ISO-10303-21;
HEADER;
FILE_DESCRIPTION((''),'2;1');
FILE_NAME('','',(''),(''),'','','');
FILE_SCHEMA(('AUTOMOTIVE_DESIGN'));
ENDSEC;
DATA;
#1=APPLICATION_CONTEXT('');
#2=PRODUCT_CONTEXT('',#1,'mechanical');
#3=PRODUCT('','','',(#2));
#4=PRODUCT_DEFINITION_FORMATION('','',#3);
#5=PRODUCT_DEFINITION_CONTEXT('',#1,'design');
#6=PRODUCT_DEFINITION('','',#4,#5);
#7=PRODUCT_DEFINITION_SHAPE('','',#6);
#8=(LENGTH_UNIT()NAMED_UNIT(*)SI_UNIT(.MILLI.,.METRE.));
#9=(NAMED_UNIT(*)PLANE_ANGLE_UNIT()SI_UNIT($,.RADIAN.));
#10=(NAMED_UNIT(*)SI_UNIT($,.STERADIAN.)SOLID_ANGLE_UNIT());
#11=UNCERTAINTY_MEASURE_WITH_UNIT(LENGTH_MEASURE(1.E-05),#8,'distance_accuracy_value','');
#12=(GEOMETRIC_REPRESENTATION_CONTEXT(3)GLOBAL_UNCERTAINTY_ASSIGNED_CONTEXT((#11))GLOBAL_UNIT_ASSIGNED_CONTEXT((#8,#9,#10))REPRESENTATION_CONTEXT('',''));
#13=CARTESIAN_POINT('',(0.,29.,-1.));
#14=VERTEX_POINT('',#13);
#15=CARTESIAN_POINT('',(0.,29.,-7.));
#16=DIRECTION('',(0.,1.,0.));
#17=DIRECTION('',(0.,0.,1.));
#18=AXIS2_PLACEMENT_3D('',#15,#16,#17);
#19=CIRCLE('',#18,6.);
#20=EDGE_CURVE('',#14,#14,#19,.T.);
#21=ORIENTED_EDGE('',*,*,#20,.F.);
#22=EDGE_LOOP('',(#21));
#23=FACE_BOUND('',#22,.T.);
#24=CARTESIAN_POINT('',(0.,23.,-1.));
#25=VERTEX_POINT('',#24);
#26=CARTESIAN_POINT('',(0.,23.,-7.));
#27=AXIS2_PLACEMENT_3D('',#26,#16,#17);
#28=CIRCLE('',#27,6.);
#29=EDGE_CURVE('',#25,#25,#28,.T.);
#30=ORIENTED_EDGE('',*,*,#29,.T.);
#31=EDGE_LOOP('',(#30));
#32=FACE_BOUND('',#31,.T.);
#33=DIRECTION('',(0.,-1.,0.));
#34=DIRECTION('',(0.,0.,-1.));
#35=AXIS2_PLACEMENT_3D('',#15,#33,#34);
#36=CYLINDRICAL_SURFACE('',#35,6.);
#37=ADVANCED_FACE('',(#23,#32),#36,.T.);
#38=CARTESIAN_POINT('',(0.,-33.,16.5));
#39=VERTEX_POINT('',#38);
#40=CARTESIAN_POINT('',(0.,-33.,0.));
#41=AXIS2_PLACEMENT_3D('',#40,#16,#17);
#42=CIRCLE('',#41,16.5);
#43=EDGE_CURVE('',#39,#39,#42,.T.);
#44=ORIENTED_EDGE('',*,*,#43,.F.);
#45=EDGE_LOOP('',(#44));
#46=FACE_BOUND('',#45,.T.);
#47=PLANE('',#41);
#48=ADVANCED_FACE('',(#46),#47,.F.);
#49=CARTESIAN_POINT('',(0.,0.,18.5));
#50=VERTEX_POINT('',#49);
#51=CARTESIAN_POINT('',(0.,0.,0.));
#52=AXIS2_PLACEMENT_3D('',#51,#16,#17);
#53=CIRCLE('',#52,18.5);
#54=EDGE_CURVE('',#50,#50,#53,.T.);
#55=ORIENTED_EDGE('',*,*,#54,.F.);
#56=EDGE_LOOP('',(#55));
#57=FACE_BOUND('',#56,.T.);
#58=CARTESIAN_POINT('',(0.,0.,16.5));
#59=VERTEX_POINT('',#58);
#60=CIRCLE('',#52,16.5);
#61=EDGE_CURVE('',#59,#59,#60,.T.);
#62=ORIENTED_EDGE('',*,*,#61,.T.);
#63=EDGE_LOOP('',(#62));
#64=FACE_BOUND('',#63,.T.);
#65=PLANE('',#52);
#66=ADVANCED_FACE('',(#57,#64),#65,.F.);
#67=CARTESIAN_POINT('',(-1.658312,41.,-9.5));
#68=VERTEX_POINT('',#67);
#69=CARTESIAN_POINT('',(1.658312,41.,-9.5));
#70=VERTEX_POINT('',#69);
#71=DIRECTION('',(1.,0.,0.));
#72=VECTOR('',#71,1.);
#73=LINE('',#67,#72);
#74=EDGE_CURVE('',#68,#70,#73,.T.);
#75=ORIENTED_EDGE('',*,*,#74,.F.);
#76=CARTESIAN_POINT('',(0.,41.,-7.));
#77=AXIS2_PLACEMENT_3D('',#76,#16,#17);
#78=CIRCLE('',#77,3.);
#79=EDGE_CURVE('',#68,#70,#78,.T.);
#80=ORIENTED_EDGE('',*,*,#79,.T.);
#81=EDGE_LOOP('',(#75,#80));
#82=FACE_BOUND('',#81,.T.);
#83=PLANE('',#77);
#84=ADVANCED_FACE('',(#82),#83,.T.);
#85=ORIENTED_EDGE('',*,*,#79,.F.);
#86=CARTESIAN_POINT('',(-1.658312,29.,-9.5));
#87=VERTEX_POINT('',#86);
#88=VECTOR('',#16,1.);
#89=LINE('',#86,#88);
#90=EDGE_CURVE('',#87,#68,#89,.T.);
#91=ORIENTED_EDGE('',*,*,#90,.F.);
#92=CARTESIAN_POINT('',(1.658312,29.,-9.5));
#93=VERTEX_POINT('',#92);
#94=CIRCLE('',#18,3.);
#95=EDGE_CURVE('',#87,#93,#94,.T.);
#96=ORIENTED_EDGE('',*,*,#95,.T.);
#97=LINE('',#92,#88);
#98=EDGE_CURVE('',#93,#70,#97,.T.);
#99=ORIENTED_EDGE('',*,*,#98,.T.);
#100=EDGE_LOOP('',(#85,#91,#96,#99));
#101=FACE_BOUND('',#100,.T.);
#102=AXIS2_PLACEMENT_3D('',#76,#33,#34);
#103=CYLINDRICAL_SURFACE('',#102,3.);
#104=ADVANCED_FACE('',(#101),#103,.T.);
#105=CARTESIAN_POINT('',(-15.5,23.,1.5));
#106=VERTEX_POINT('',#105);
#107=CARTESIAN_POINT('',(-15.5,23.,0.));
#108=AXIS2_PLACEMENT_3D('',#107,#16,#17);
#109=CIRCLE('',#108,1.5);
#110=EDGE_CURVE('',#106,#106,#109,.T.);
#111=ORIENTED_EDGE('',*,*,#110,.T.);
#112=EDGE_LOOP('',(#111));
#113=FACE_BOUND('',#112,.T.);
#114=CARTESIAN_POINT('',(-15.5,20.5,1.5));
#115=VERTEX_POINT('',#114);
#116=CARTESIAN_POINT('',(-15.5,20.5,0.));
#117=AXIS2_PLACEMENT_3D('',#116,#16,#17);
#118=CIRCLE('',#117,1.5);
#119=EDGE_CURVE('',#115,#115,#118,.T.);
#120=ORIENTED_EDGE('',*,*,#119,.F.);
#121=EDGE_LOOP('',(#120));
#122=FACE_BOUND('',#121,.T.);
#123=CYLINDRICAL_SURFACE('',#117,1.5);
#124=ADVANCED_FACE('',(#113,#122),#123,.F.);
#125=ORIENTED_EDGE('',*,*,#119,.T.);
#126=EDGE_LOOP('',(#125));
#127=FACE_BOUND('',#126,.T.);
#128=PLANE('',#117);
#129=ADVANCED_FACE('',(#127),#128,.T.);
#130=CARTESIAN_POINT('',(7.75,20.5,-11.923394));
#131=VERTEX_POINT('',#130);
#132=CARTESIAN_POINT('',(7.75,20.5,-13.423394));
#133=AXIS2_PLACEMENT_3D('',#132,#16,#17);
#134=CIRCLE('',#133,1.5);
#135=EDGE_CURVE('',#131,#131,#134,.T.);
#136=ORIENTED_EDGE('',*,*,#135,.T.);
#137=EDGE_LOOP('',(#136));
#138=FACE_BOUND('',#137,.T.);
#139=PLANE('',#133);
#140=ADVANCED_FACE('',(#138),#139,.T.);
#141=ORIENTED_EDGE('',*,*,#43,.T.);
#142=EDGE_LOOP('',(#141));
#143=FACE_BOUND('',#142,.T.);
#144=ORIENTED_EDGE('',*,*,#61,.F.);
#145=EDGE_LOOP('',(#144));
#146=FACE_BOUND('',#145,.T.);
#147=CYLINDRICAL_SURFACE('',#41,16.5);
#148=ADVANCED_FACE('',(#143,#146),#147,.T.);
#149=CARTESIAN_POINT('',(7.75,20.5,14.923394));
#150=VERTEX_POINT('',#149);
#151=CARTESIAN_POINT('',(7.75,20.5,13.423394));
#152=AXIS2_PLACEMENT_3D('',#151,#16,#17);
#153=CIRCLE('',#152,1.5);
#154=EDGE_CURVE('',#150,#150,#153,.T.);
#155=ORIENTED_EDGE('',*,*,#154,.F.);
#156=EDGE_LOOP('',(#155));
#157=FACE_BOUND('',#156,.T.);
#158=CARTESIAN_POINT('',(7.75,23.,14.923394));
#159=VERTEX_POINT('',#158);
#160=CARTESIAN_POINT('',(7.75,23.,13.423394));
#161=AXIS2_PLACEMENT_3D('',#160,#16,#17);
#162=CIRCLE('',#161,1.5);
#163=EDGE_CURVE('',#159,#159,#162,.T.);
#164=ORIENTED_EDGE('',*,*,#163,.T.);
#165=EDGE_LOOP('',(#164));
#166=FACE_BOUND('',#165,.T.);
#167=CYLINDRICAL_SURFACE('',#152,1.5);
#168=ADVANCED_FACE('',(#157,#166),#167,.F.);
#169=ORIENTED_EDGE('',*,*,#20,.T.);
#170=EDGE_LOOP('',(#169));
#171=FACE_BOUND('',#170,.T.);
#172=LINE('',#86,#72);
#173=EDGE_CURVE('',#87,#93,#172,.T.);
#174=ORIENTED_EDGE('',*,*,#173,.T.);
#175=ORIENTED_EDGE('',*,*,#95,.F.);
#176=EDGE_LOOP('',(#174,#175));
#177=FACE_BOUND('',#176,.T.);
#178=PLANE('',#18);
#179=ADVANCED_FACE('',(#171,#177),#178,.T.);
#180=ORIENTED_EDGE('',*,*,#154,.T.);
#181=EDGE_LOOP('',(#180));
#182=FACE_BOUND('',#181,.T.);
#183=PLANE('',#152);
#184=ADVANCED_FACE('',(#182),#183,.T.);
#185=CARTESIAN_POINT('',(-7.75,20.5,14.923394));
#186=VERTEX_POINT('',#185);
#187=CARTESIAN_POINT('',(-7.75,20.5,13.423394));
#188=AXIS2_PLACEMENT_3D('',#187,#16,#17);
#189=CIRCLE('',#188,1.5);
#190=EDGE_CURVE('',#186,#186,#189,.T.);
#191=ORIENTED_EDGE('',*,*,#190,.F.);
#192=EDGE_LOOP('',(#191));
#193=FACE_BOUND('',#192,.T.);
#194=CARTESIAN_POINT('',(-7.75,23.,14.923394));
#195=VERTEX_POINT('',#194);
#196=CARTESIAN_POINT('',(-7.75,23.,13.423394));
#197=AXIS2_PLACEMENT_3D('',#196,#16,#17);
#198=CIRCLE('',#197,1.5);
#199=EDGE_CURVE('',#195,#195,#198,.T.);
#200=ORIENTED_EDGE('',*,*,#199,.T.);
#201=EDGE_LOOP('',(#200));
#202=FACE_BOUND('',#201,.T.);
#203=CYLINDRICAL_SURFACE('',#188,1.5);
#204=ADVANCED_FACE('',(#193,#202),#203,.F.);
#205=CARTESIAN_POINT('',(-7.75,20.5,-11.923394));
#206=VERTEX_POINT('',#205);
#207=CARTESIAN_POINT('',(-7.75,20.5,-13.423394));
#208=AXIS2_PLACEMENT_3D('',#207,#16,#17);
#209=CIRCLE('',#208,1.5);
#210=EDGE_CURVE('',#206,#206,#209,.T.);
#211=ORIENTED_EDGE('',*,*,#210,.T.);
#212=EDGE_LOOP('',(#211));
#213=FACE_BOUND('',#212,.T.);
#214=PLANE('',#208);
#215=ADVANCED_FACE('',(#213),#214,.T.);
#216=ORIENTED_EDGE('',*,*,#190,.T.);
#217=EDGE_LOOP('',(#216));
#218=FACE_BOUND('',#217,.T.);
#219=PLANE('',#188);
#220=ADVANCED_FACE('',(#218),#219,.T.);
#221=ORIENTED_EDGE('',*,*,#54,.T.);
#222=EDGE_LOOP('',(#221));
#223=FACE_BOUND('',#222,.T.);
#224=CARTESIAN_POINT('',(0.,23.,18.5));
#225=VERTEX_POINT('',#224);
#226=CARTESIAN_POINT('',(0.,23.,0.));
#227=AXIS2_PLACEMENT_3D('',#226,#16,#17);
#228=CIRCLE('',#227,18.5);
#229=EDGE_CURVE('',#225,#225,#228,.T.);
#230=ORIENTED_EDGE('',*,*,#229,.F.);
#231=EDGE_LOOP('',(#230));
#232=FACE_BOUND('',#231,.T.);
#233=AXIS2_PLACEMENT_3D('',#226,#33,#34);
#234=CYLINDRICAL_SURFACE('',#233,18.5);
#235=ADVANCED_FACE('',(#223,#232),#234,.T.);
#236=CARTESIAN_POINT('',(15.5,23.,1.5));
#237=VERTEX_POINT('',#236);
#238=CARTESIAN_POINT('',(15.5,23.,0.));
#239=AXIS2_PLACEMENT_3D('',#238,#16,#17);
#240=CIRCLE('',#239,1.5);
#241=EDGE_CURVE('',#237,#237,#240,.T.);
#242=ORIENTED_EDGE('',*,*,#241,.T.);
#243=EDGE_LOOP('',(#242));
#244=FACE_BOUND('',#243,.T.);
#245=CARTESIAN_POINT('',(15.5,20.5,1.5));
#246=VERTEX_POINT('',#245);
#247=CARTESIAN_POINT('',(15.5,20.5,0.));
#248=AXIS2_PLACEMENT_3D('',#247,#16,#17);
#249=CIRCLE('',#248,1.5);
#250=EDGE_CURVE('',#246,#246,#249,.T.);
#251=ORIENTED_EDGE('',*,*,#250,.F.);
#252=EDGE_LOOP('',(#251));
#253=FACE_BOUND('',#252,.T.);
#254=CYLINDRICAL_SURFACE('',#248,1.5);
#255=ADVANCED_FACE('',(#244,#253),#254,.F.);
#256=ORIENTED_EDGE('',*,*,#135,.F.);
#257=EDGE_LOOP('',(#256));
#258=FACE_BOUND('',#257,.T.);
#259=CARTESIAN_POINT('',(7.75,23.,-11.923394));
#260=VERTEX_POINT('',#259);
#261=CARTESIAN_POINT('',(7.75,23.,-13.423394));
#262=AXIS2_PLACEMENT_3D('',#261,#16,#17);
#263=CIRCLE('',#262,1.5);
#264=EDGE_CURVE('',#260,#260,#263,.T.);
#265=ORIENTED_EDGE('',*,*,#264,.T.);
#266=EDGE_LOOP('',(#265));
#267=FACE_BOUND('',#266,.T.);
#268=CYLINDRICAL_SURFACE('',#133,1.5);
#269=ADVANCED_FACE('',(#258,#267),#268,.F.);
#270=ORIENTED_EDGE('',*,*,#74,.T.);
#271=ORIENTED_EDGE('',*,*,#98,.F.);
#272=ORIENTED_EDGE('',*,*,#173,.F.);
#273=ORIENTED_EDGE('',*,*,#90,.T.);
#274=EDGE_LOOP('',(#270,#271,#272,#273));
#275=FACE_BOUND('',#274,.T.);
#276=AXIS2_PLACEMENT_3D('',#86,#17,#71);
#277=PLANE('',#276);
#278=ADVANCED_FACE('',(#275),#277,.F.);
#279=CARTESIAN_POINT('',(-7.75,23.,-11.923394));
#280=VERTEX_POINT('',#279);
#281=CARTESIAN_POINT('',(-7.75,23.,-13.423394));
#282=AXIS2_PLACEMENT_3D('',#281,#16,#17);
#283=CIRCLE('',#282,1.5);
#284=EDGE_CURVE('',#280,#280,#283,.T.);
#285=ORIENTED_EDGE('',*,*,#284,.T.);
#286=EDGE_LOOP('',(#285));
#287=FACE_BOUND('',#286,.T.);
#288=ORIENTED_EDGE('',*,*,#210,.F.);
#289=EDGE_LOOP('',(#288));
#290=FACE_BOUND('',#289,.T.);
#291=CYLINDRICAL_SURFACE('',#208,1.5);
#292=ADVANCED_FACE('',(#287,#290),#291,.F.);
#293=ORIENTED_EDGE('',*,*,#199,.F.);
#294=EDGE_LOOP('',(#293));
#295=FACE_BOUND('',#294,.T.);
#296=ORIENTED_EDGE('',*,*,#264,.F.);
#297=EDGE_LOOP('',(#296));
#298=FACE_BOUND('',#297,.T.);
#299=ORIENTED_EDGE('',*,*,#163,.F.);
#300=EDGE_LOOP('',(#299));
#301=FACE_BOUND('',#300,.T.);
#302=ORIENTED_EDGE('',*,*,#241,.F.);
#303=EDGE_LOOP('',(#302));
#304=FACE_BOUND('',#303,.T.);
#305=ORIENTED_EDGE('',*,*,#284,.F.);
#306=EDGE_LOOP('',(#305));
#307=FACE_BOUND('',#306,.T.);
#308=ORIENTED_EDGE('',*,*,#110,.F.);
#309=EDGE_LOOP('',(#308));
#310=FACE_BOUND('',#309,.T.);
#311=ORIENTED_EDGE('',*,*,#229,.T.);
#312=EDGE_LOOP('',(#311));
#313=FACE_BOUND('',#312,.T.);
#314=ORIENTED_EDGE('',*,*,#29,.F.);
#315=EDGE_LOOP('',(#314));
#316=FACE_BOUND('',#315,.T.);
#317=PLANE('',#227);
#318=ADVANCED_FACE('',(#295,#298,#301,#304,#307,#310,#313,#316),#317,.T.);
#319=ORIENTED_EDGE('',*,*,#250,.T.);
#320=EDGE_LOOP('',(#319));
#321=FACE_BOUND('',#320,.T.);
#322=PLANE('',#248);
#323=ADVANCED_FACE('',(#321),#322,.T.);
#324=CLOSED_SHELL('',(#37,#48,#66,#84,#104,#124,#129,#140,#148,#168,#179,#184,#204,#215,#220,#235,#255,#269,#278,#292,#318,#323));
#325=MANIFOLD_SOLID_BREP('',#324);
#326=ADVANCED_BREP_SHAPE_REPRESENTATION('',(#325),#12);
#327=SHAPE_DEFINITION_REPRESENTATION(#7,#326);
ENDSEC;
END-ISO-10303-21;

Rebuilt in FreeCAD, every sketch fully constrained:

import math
import FreeCAD as App
import Part
import Sketcher

V = App.Vector

doc = App.newDocument("Part")
params = doc.addObject("Spreadsheet::Sheet", "Params")
for row, (alias, value) in enumerate([
    ("sketch1_diameter", "33 mm"),
    ("pad1_length", "33 mm"),
    ("sketch2_diameter", "37 mm"),
    ("pad2_length", "23 mm"),
    ("sketch3_diameter", "3 mm"),
    ("pocket1_length", "2.5 mm"),
    ("sketch4_diameter", "6 mm"),
    ("pad3_length", "18 mm"),
    ("sketch5_diameter", "12 mm"),
    ("pad4_length", "6 mm"),
    ("sketch6_radius", "3 mm"),
    ("pocket2_length", "12 mm"),
], start=1):
    params.set(f"A{row}", alias)
    params.set(f"B{row}", "=" + value)
    params.setAlias(f"B{row}", alias)

body = doc.addObject("PartDesign::Body", "Body")

# Sketch on XZ plane
sketch1 = body.newObject("Sketcher::SketchObject", "Sketch")
sketch1.AttachmentSupport = (doc.getObject("XZ_Plane"), [""])
sketch1.MapMode = "FlatFace"
sketch1.addGeometry(Part.Circle(V(0, 0, 0), V(0, 0, 1), 16.5), False)
sketch1.addConstraint(Sketcher.Constraint("Coincident", 0, 3, -1, 1))
sketch1.addConstraint(Sketcher.Constraint("Diameter", 0, 33.0))
sketch1.setExpression("Constraints[1]", "Params.sketch1_diameter")
pad1 = body.newObject("PartDesign::Pad", "Pad")
pad1.Profile = sketch1
pad1.setExpression("Length", "Params.pad1_length")

# Sketch on XZ plane
sketch2 = body.newObject("Sketcher::SketchObject", "Sketch001")
sketch2.AttachmentSupport = (doc.getObject("XZ_Plane"), [""])
sketch2.MapMode = "FlatFace"
sketch2.addGeometry(Part.Circle(V(0, 0, 0), V(0, 0, 1), 18.5), False)
sketch2.addConstraint(Sketcher.Constraint("Coincident", 0, 3, -1, 1))
sketch2.addConstraint(Sketcher.Constraint("Diameter", 0, 37.0))
sketch2.setExpression("Constraints[1]", "Params.sketch2_diameter")
pad2 = body.newObject("PartDesign::Pad", "Pad001")
pad2.Profile = sketch2
pad2.setExpression("Length", "Params.pad2_length")
pad2.Reversed = True

# Sketch on XZ plane
sketch3 = body.newObject("Sketcher::SketchObject", "Sketch002")
sketch3.AttachmentSupport = (doc.getObject("XZ_Plane"), [""])
sketch3.MapMode = "FlatFace"
sketch3.AttachmentOffset = App.Placement(V(0, 0, -23), App.Rotation())
sketch3.addGeometry(Part.Circle(V(-7.75, -13.423394, 0), V(0, 0, 1), 1.5), False)
sketch3.addGeometry(Part.Circle(V(7.75, -13.423394, 0), V(0, 0, 1), 1.5), False)
sketch3.addGeometry(Part.Circle(V(15.5, 0, 0), V(0, 0, 1), 1.5), False)
sketch3.addGeometry(Part.Circle(V(7.75, 13.423394, 0), V(0, 0, 1), 1.5), False)
sketch3.addGeometry(Part.Circle(V(-7.75, 13.423394, 0), V(0, 0, 1), 1.5), False)
sketch3.addGeometry(Part.Circle(V(-15.5, 0, 0), V(0, 0, 1), 1.5), False)
sketch3.addConstraint(Sketcher.Constraint("Equal", 0, 1))
sketch3.addConstraint(Sketcher.Constraint("Equal", 1, 2))
sketch3.addConstraint(Sketcher.Constraint("Equal", 2, 3))
sketch3.addConstraint(Sketcher.Constraint("Equal", 3, 4))
sketch3.addConstraint(Sketcher.Constraint("Equal", 4, 5))
sketch3.addConstraint(Sketcher.Constraint("Symmetric", 0, 3, 3, 3, -1, 1))
sketch3.addConstraint(Sketcher.Constraint("Symmetric", 1, 3, 4, 3, -1, 1))
sketch3.addConstraint(Sketcher.Constraint("Symmetric", 2, 3, 5, 3, -1, 1))
sketch3.addConstraint(Sketcher.Constraint("Symmetric", 0, 3, 1, 3, -2))
sketch3.addConstraint(Sketcher.Constraint("PointOnObject", 2, 3, -1))
sketch3.addConstraint(Sketcher.Constraint("Diameter", 0, 3.0))
sketch3.addConstraint(Sketcher.Constraint("DistanceX", 5, 3, 2, 3, 31.0))
sketch3.addConstraint(Sketcher.Constraint("DistanceX", 0, 3, 1, 3, 15.5))
sketch3.addConstraint(Sketcher.Constraint("DistanceY", 0, 3, -1, 1, 13.423394))
sketch3.setExpression("Constraints[10]", "Params.sketch3_diameter")
pocket1 = body.newObject("PartDesign::Pocket", "Pocket")
pocket1.Profile = sketch3
pocket1.setExpression("Length", "Params.pocket1_length")
pocket1.Reversed = True

# Sketch on XZ plane
sketch4 = body.newObject("Sketcher::SketchObject", "Sketch003")
sketch4.AttachmentSupport = (doc.getObject("XZ_Plane"), [""])
sketch4.MapMode = "FlatFace"
sketch4.AttachmentOffset = App.Placement(V(0, 0, -23), App.Rotation())
sketch4.addGeometry(Part.Circle(V(0, -7, 0), V(0, 0, 1), 3), False)
sketch4.addConstraint(Sketcher.Constraint("PointOnObject", 0, 3, -2))
sketch4.addConstraint(Sketcher.Constraint("Diameter", 0, 6.0))
sketch4.addConstraint(Sketcher.Constraint("DistanceY", 0, 3, -1, 1, 7.0))
sketch4.setExpression("Constraints[1]", "Params.sketch4_diameter")
pad3 = body.newObject("PartDesign::Pad", "Pad002")
pad3.Profile = sketch4
pad3.setExpression("Length", "Params.pad3_length")
pad3.Reversed = True

# Sketch on XZ plane
sketch5 = body.newObject("Sketcher::SketchObject", "Sketch004")
sketch5.AttachmentSupport = (doc.getObject("XZ_Plane"), [""])
sketch5.MapMode = "FlatFace"
sketch5.AttachmentOffset = App.Placement(V(0, 0, -23), App.Rotation())
sketch5.addGeometry(Part.Circle(V(0, -7, 0), V(0, 0, 1), 6), False)
sketch5.addConstraint(Sketcher.Constraint("PointOnObject", 0, 3, -2))
sketch5.addConstraint(Sketcher.Constraint("Diameter", 0, 12.0))
sketch5.addConstraint(Sketcher.Constraint("DistanceY", 0, 3, -1, 1, 7.0))
sketch5.setExpression("Constraints[1]", "Params.sketch5_diameter")
pad4 = body.newObject("PartDesign::Pad", "Pad003")
pad4.Profile = sketch5
pad4.setExpression("Length", "Params.pad4_length")
pad4.Reversed = True

# Sketch on XZ plane
sketch6 = body.newObject("Sketcher::SketchObject", "Sketch005")
sketch6.AttachmentSupport = (doc.getObject("XZ_Plane"), [""])
sketch6.MapMode = "FlatFace"
sketch6.AttachmentOffset = App.Placement(V(0, 0, -29), App.Rotation())
sketch6.addGeometry(Part.LineSegment(V(-1.658312, -9.5, 0), V(1.658312, -9.5, 0)), False)
sketch6.addGeometry(Part.ArcOfCircle(Part.Circle(V(0, -7, 0), V(0, 0, 1), 3), math.radians(-123.55731), math.radians(-56.44269)), False)
sketch6.addConstraint(Sketcher.Constraint("Coincident", 0, 1, 1, 1))
sketch6.addConstraint(Sketcher.Constraint("Coincident", 1, 2, 0, 2))
sketch6.addConstraint(Sketcher.Constraint("Horizontal", 0))
sketch6.addConstraint(Sketcher.Constraint("PointOnObject", 1, 3, -2))
sketch6.addConstraint(Sketcher.Constraint("Radius", 1, 3.0))
sketch6.addConstraint(Sketcher.Constraint("DistanceY", 1, 3, -1, 1, 7.0))
sketch6.addConstraint(Sketcher.Constraint("DistanceY", 0, 1, -1, 1, 9.5))
sketch6.setExpression("Constraints[4]", "Params.sketch6_radius")
pocket2 = body.newObject("PartDesign::Pocket", "Pocket001")
pocket2.Profile = sketch6
pocket2.setExpression("Length", "Params.pocket2_length")

doc.recompute()
